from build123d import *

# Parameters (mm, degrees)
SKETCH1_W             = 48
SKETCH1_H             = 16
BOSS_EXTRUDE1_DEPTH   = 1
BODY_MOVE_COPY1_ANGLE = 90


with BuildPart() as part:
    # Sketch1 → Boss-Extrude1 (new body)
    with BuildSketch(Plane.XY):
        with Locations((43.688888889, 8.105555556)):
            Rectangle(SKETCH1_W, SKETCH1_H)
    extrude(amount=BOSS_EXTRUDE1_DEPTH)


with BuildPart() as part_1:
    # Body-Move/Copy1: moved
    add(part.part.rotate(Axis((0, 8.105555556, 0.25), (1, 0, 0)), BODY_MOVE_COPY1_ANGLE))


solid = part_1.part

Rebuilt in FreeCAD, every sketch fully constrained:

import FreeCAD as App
import Part
import Sketcher
Q = App.Units.Quantity


def add_polygon(sketch, points):
    """Adds a closed chain of lines whose ends are joined by coincident constraints."""
    first, n = sketch.GeometryCount, len(points)
    for a, b in zip(points, points[1:] + points[:1]):
        sketch.addGeometry(Part.LineSegment(App.Vector(*a, 0), App.Vector(*b, 0)), False)
    for i in range(n):
        sketch.addConstraint(Sketcher.Constraint("Coincident", first + i, 2, first + (i + 1) % n, 1))

doc = App.newDocument("Part")
body = doc.addObject("PartDesign::Body", "Body")

# Sketch on XY plane
sketch1 = doc.addObject("Sketcher::SketchObject", "Sketch")
body.addObject(sketch1)
sketch1.AttachmentSupport = (doc.XY_Plane, [""])
sketch1.MapMode = "FlatFace"
add_polygon(sketch1, [(20, 16), (20, 0), (68, 0), (68, 16)])  # lines 0-3
sketch1.addConstraint(Sketcher.Constraint("Vertical", 0))
sketch1.addConstraint(Sketcher.Constraint("Horizontal", 1))
sketch1.addConstraint(Sketcher.Constraint("Vertical", 2))
sketch1.addConstraint(Sketcher.Constraint("Horizontal", 3))
sketch1.addConstraint(Sketcher.Constraint("DistanceX", 1, 1, 1, 2, Q("48 mm")))
sketch1.addConstraint(Sketcher.Constraint("DistanceY", 0, 2, 0, 1, Q("16 mm")))
sketch1.addConstraint(Sketcher.Constraint("DistanceX", -1, 1, 0, 2, Q("19.688889 mm")))
sketch1.addConstraint(Sketcher.Constraint("DistanceY", -1, 1, 0, 2, Q("0.105556 mm")))
pad1 = doc.addObject("PartDesign::Pad", "Pad")
body.addObject(pad1)
pad1.Profile = sketch1
pad1.Length = 1
body2 = doc.addObject("PartDesign::Body", "Body001")
doc.recompute()

body.Placement = App.Placement(App.Vector(0, 8.355556, -7.855556), App.Rotation(App.Vector(1, 0, 0), 90))
boolean = doc.addObject("PartDesign::Boolean", "Boolean")
body2.addObject(boolean)
boolean.Type = "Fuse"
boolean.addObjects([body])

doc.recompute()
